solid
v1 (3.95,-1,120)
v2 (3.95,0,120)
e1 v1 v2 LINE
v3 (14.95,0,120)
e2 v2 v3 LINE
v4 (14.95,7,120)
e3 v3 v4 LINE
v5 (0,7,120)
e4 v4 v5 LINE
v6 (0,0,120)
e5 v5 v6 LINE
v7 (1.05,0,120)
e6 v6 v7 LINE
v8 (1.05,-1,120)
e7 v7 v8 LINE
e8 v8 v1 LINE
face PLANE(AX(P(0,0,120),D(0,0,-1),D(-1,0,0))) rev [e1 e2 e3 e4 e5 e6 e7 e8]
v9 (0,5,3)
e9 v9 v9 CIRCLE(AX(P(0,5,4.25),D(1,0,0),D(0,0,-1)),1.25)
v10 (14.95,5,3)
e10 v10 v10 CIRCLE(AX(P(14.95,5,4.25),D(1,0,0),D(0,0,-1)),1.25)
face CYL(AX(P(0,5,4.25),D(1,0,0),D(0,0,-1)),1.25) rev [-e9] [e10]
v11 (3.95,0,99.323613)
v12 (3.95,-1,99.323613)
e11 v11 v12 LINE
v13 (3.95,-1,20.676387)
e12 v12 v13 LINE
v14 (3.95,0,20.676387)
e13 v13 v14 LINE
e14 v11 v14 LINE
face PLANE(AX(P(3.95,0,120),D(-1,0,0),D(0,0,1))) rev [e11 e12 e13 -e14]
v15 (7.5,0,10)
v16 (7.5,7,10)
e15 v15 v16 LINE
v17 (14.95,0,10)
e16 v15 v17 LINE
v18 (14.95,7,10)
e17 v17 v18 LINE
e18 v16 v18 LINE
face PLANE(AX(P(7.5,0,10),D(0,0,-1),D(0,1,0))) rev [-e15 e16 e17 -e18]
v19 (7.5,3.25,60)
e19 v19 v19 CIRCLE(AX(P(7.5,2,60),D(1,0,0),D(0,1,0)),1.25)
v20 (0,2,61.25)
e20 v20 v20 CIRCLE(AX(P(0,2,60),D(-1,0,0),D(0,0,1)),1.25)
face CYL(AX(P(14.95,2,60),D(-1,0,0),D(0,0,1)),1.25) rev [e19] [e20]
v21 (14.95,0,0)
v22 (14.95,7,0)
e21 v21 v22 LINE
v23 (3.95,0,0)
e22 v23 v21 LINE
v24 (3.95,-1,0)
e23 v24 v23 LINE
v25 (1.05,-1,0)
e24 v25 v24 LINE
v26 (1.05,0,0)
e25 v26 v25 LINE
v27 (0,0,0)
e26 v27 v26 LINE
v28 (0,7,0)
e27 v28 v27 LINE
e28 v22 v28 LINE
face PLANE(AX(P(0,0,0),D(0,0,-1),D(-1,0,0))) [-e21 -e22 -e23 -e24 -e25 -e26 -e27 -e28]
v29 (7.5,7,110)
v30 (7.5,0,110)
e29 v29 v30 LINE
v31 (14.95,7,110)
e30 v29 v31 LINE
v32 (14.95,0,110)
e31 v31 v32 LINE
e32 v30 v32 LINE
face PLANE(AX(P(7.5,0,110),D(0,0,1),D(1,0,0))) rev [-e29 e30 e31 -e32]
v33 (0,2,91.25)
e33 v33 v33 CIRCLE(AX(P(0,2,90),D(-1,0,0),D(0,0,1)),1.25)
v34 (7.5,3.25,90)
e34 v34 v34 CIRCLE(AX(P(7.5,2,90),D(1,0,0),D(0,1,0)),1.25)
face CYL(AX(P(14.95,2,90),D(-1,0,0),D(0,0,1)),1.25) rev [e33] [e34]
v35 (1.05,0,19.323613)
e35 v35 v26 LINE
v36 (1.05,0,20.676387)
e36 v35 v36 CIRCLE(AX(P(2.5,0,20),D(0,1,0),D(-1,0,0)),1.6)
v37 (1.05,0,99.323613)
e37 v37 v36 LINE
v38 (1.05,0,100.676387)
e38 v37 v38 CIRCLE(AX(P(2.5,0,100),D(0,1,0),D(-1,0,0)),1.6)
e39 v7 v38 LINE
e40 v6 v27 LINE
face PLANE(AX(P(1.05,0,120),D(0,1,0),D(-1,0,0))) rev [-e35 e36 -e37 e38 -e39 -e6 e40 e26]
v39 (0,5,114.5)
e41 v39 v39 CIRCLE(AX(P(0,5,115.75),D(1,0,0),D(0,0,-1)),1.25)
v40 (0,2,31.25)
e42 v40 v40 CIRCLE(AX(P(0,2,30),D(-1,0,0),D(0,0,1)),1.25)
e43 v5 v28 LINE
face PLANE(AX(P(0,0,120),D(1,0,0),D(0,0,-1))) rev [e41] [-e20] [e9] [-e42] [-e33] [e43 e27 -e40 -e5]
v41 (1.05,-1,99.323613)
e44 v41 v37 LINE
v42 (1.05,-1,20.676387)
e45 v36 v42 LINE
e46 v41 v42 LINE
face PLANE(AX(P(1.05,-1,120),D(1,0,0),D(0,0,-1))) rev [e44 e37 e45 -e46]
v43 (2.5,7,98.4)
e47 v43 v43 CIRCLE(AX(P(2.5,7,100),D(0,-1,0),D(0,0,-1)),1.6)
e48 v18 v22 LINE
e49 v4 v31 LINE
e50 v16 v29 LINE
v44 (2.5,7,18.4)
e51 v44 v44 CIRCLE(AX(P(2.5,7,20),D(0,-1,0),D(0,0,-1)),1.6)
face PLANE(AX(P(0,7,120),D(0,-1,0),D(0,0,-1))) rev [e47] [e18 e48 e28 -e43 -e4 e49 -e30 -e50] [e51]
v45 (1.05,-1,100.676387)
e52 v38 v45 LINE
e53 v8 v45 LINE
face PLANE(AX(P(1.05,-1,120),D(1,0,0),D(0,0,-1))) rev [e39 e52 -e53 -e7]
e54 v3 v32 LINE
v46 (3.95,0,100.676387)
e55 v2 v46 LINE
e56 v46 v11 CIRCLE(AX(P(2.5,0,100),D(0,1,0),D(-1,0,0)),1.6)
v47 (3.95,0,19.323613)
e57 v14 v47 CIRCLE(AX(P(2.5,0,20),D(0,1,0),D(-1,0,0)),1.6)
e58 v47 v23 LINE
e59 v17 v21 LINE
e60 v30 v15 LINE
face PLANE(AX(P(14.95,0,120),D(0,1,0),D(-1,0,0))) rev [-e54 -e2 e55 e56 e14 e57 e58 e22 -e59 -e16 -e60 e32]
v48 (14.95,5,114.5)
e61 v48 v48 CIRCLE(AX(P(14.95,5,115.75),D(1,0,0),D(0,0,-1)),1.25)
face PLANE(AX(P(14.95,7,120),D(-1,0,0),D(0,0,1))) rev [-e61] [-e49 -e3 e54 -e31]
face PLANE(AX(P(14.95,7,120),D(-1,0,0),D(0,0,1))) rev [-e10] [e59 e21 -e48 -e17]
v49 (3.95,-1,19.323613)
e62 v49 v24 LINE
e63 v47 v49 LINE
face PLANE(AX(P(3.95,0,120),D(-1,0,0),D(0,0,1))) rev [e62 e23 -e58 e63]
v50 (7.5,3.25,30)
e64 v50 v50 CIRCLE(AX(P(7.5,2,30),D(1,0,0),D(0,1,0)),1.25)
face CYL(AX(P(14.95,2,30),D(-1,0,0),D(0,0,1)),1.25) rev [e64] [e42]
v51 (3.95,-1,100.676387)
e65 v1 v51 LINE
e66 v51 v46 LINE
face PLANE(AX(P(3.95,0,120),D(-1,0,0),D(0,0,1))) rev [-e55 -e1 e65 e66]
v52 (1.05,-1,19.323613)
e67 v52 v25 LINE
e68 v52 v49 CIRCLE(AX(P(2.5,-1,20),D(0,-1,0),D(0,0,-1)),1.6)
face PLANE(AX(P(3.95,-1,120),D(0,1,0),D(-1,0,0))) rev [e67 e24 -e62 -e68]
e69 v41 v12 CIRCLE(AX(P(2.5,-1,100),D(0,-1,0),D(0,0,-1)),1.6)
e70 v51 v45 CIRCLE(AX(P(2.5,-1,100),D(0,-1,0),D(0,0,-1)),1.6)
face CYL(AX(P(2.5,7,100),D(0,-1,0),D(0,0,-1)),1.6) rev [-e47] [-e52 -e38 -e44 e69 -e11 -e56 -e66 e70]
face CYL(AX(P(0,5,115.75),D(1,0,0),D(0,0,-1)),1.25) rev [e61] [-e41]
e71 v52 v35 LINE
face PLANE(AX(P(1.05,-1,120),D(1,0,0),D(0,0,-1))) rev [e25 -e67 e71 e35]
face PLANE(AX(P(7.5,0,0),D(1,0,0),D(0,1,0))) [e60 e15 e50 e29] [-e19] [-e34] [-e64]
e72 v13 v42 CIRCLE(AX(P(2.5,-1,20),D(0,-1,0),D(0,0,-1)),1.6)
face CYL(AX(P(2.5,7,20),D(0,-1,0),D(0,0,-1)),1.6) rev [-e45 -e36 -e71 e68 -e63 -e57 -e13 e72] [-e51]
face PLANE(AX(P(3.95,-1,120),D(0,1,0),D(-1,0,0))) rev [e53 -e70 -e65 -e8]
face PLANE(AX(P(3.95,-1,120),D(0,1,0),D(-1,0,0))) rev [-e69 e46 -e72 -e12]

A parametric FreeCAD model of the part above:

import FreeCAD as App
import Part
import Sketcher
Q = App.Units.Quantity

doc = App.newDocument("Part")
params = doc.addObject("Spreadsheet::Sheet", "Params")
for row, (alias, value) in enumerate([
    ("sketch1_width", "11 mm"),
    ("sketch1_height", "7 mm"),
    ("sketch1_height2", "1 mm"),
    ("sketch1_width2", "2.9 mm"),
    ("sketch1_width3", "14.95 mm"),
    ("pad1_length", "120 mm"),
    ("sketch2_diameter", "2.5 mm"),
    ("sketch3_diameter", "3.2 mm"),
    ("sketch4_width", "7 mm"),
    ("sketch4_height", "100 mm"),
    ("pocket3_length", "7.45 mm"),
    ("sketch5_diameter", "2.5 mm"),
], start=1):
    params.set(f"A{row}", alias)
    params.set(f"B{row}", "=" + value)
    params.setAlias(f"B{row}", alias)

body = doc.addObject("PartDesign::Body", "Body")

# Sketch on XY plane
sketch1 = body.newObject("Sketcher::SketchObject", "Sketch")
sketch1.AttachmentSupport = (doc.getObject("XY_Plane"), [""])
sketch1.MapMode = "FlatFace"
sketch1.addGeometry(Part.LineSegment(App.Vector(14.9, 7, 0), App.Vector(0, 7, 0)), False)
sketch1.addGeometry(Part.LineSegment(App.Vector(0, 7, 0), App.Vector(0, 0, 0)), False)
sketch1.addGeometry(Part.LineSegment(App.Vector(0, 0, 0), App.Vector(1.1, 0, 0)), False)
sketch1.addGeometry(Part.LineSegment(App.Vector(1.1, 0, 0), App.Vector(1.1, -1, 0)), False)
sketch1.addGeometry(Part.LineSegment(App.Vector(1.1, -1, 0), App.Vector(4, -1, 0)), False)
sketch1.addGeometry(Part.LineSegment(App.Vector(4, -1, 0), App.Vector(4, 0, 0)), False)
sketch1.addGeometry(Part.LineSegment(App.Vector(4, 0, 0), App.Vector(14.9, 0, 0)), False)
sketch1.addGeometry(Part.LineSegment(App.Vector(14.9, 0, 0), App.Vector(14.9, 7, 0)), False)
sketch1.addConstraint(Sketcher.Constraint("Coincident", 0, 2, 1, 1))
sketch1.addConstraint(Sketcher.Constraint("Coincident", 1, 2, 2, 1))
sketch1.addConstraint(Sketcher.Constraint("Coincident", 2, 2, 3, 1))
sketch1.addConstraint(Sketcher.Constraint("Coincident", 3, 2, 4, 1))
sketch1.addConstraint(Sketcher.Constraint("Coincident", 4, 2, 5, 1))
sketch1.addConstraint(Sketcher.Constraint("Coincident", 5, 2, 6, 1))
sketch1.addConstraint(Sketcher.Constraint("Coincident", 6, 2, 7, 1))
sketch1.addConstraint(Sketcher.Constraint("Coincident", 7, 2, 0, 1))
sketch1.addConstraint(Sketcher.Constraint("Horizontal", 0))
sketch1.addConstraint(Sketcher.Constraint("Vertical", 1))
sketch1.addConstraint(Sketcher.Constraint("Horizontal", 2))
sketch1.addConstraint(Sketcher.Constraint("Vertical", 3))
sketch1.addConstraint(Sketcher.Constraint("Horizontal", 4))
sketch1.addConstraint(Sketcher.Constraint("Vertical", 5))
sketch1.addConstraint(Sketcher.Constraint("Horizontal", 6))
sketch1.addConstraint(Sketcher.Constraint("Vertical", 7))
sketch1.addConstraint(Sketcher.Constraint("Coincident", 1, 2, -1, 1))
sketch1.addConstraint(Sketcher.Constraint("PointOnObject", 5, 2, -1))
sketch1.addConstraint(Sketcher.Constraint("DistanceX", 6, 1, 6, 2, Q("11 mm")))
sketch1.addConstraint(Sketcher.Constraint("DistanceY", 1, 2, 1, 1, Q("7 mm")))
sketch1.addConstraint(Sketcher.Constraint("DistanceY", 3, 2, 3, 1, Q("1 mm")))
sketch1.addConstraint(Sketcher.Constraint("DistanceX", 4, 1, 4, 2, Q("2.9 mm")))
sketch1.addConstraint(Sketcher.Constraint("DistanceX", 0, 2, 0, 1, Q("14.95 mm")))
sketch1.setExpression("Constraints[18]", "Params.sketch1_width")
sketch1.setExpression("Constraints[19]", "Params.sketch1_height")
sketch1.setExpression("Constraints[20]", "Params.sketch1_height2")
sketch1.setExpression("Constraints[21]", "Params.sketch1_width2")
sketch1.setExpression("Constraints[22]", "Params.sketch1_width3")
pad1 = body.newObject("PartDesign::Pad", "Pad")
pad1.Profile = sketch1
pad1.setExpression("Length", "Params.pad1_length")

# Sketch on YZ plane
sketch2 = body.newObject("Sketcher::SketchObject", "Sketch001")
sketch2.AttachmentSupport = (doc.getObject("YZ_Plane"), [""])
sketch2.MapMode = "FlatFace"
sketch2.AttachmentOffset = App.Placement(App.Vector(0, 0, 14.95), App.Rotation())
sketch2.addGeometry(Part.Circle(App.Vector(5, 4.2, 0), App.Vector(0, 0, 1), 1.2), False)
sketch2.addGeometry(Part.Circle(App.Vector(5, 115.8, 0), App.Vector(0, 0, 1), 1.2), False)
sketch2.addConstraint(Sketcher.Constraint("Equal", 0, 1))
sketch2.addConstraint(Sketcher.Constraint("Vertical", 0, 3, 1, 3))
sketch2.addConstraint(Sketcher.Constraint("Diameter", 0, Q("2.5 mm")))
sketch2.addConstraint(Sketcher.Constraint("DistanceX", -1, 1, 0, 3, Q("5 mm")))
sketch2.addConstraint(Sketcher.Constraint("DistanceY", 0, 3, 1, 3, Q("111.5 mm")))
sketch2.addConstraint(Sketcher.Constraint("DistanceY", -1, 1, 0, 3, Q("4.25 mm")))
sketch2.setExpression("Constraints[2]", "Params.sketch2_diameter")
pocket1 = body.newObject("PartDesign::Pocket", "Pocket")
pocket1.Profile = sketch2
pocket1.Type = "ThroughAll"

# Sketch on XZ plane
sketch3 = body.newObject("Sketcher::SketchObject", "Sketch002")
sketch3.AttachmentSupport = (doc.getObject("XZ_Plane"), [""])
sketch3.MapMode = "FlatFace"
sketch3.AttachmentOffset = App.Placement(App.Vector(0, 0, 1), App.Rotation())
sketch3.addGeometry(Part.Circle(App.Vector(2.5, 100, 0), App.Vector(0, 0, 1), 1.6), False)
sketch3.addGeometry(Part.Circle(App.Vector(2.5, 20, 0), App.Vector(0, 0, 1), 1.6), False)
sketch3.addConstraint(Sketcher.Constraint("Equal", 0, 1))
sketch3.addConstraint(Sketcher.Constraint("Vertical", 0, 3, 1, 3))
sketch3.addConstraint(Sketcher.Constraint("Diameter", 0, Q("3.2 mm")))
sketch3.addConstraint(Sketcher.Constraint("DistanceY", -1, 1, 0, 3, Q("100 mm")))
sketch3.addConstraint(Sketcher.Constraint("DistanceY", -1, 1, 1, 3, Q("20 mm")))
sketch3.addConstraint(Sketcher.Constraint("DistanceX", -1, 1, 0, 3, Q("2.5 mm")))
sketch3.setExpression("Constraints[2]", "Params.sketch3_diameter")
pocket2 = body.newObject("PartDesign::Pocket", "Pocket001")
pocket2.Profile = sketch3
pocket2.Type = "ThroughAll"

# Sketch on YZ plane
sketch4 = body.newObject("Sketcher::SketchObject", "Sketch003")
sketch4.AttachmentSupport = (doc.getObject("YZ_Plane"), [""])
sketch4.MapMode = "FlatFace"
sketch4.AttachmentOffset = App.Placement(App.Vector(0, 0, 14.95), App.Rotation())
sketch4.addGeometry(Part.LineSegment(App.Vector(7, 110, 0), App.Vector(0, 110, 0)), False)
sketch4.addGeometry(Part.LineSegment(App.Vector(0, 110, 0), App.Vector(0, 10, 0)), False)
sketch4.addGeometry(Part.LineSegment(App.Vector(0, 10, 0), App.Vector(7, 10, 0)), False)
sketch4.addGeometry(Part.LineSegment(App.Vector(7, 10, 0), App.Vector(7, 110, 0)), False)
sketch4.addConstraint(Sketcher.Constraint("Coincident", 0, 2, 1, 1))
sketch4.addConstraint(Sketcher.Constraint("Coincident", 1, 2, 2, 1))
sketch4.addConstraint(Sketcher.Constraint("Coincident", 2, 2, 3, 1))
sketch4.addConstraint(Sketcher.Constraint("Coincident", 3, 2, 0, 1))
sketch4.addConstraint(Sketcher.Constraint("Horizontal", 0))
sketch4.addConstraint(Sketcher.Constraint("Vertical", 1))
sketch4.addConstraint(Sketcher.Constraint("Horizontal", 2))
sketch4.addConstraint(Sketcher.Constraint("Vertical", 3))
sketch4.addConstraint(Sketcher.Constraint("PointOnObject", 0, 2, -2))
sketch4.addConstraint(Sketcher.Constraint("DistanceX", 0, 2, 0, 1, Q("7 mm")))
sketch4.addConstraint(Sketcher.Constraint("DistanceY", 1, 2, 1, 1, Q("100 mm")))
sketch4.addConstraint(Sketcher.Constraint("DistanceY", -1, 1, 0, 2, Q("110 mm")))
sketch4.setExpression("Constraints[9]", "Params.sketch4_width")
sketch4.setExpression("Constraints[10]", "Params.sketch4_height")
pocket3 = body.newObject("PartDesign::Pocket", "Pocket002")
pocket3.Profile = sketch4
pocket3.setExpression("Length", "Params.pocket3_length")

# Sketch on YZ plane
sketch5 = body.newObject("Sketcher::SketchObject", "Sketch004")
sketch5.AttachmentSupport = (doc.getObject("YZ_Plane"), [""])
sketch5.MapMode = "FlatFace"
sketch5.addGeometry(Part.Circle(App.Vector(2, 60, 0), App.Vector(0, 0, 1), 1.2), False)
sketch5.addGeometry(Part.Circle(App.Vector(2, 30, 0), App.Vector(0, 0, 1), 1.2), False)
sketch5.addGeometry(Part.Circle(App.Vector(2, 90, 0), App.Vector(0, 0, 1), 1.2), False)
sketch5.addConstraint(Sketcher.Constraint("Equal", 0, 1))
sketch5.addConstraint(Sketcher.Constraint("Equal", 1, 2))
sketch5.addConstraint(Sketcher.Constraint("Vertical", 0, 3, 1, 3))
sketch5.addConstraint(Sketcher.Constraint("Vertical", 1, 3, 2, 3))
sketch5.addConstraint(Sketcher.Constraint("Diameter", 0, Q("2.5 mm")))
sketch5.addConstraint(Sketcher.Constraint("DistanceX", -1, 1, 0, 3, Q("2 mm")))
sketch5.addConstraint(Sketcher.Constraint("DistanceY", -1, 1, 0, 3, Q("60 mm")))
sketch5.addConstraint(Sketcher.Constraint("DistanceY", -1, 1, 1, 3, Q("30 mm")))
sketch5.addConstraint(Sketcher.Constraint("DistanceY", -1, 1, 2, 3, Q("90 mm")))
sketch5.setExpression("Constraints[4]", "Params.sketch5_diameter")
pocket4 = body.newObject("PartDesign::Pocket", "Pocket003")
pocket4.Profile = sketch5
pocket4.Type = "ThroughAll"
pocket4.Reversed = True

doc.recompute()
